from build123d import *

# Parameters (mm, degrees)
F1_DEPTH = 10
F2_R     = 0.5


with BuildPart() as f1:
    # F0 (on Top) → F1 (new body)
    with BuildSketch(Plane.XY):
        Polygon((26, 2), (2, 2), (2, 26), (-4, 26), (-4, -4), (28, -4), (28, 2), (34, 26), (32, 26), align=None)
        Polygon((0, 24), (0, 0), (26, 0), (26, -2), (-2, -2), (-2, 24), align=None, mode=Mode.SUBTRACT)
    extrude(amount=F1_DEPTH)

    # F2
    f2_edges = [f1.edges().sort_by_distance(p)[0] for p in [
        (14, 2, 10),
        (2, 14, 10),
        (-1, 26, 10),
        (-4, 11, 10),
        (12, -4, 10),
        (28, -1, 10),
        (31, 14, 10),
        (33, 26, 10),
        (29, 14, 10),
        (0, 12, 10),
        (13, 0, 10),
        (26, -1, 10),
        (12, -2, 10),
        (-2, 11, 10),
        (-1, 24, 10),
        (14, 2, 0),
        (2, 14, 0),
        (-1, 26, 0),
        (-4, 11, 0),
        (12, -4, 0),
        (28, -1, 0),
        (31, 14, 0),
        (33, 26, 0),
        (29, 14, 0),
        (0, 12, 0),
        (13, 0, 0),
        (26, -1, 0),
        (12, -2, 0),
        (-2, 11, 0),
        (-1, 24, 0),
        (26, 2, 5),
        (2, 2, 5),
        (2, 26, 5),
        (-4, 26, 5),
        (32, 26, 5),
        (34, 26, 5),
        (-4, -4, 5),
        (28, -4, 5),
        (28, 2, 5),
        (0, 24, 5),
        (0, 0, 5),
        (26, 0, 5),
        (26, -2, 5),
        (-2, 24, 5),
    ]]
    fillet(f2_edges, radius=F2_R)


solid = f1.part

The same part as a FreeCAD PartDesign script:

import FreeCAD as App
import Part
import Sketcher


def edges_at(feature, points):
    """Names of the edges that pass closest to the given points."""
    edges = feature.Shape.Edges
    near = lambda p: min(range(len(edges)), key=lambda i: edges[i].distToShape(Part.Vertex(*p))[0])
    return sorted({f"Edge{near(p) + 1}" for p in points})

doc = App.newDocument("Part")
body = doc.addObject("PartDesign::Body", "Body")

# Sketch on XY plane
sketch1 = body.newObject("Sketcher::SketchObject", "Sketch")
sketch1.AttachmentSupport = (doc.getObject("XY_Plane"), [""])
sketch1.MapMode = "FlatFace"
sketch1.addGeometry(Part.LineSegment(App.Vector(26, 2, 0), App.Vector(2, 2, 0)), False)
sketch1.addGeometry(Part.LineSegment(App.Vector(2, 2, 0), App.Vector(2, 26, 0)), False)
sketch1.addGeometry(Part.LineSegment(App.Vector(2, 26, 0), App.Vector(-4, 26, 0)), False)
sketch1.addGeometry(Part.LineSegment(App.Vector(-4, 26, 0), App.Vector(-4, -4, 0)), False)
sketch1.addGeometry(Part.LineSegment(App.Vector(-4, -4, 0), App.Vector(28, -4, 0)), False)
sketch1.addGeometry(Part.LineSegment(App.Vector(28, -4, 0), App.Vector(28, 2, 0)), False)
sketch1.addGeometry(Part.LineSegment(App.Vector(28, 2, 0), App.Vector(34, 26, 0)), False)
sketch1.addGeometry(Part.LineSegment(App.Vector(34, 26, 0), App.Vector(32, 26, 0)), False)
sketch1.addGeometry(Part.LineSegment(App.Vector(32, 26, 0), App.Vector(26, 2, 0)), False)
sketch1.addGeometry(Part.LineSegment(App.Vector(-2, 24, 0), App.Vector(0, 24, 0)), False)
sketch1.addGeometry(Part.LineSegment(App.Vector(0, 24, 0), App.Vector(0, 0, 0)), False)
sketch1.addGeometry(Part.LineSegment(App.Vector(0, 0, 0), App.Vector(26, 0, 0)), False)
sketch1.addGeometry(Part.LineSegment(App.Vector(26, 0, 0), App.Vector(26, -2, 0)), False)
sketch1.addGeometry(Part.LineSegment(App.Vector(26, -2, 0), App.Vector(-2, -2, 0)), False)
sketch1.addGeometry(Part.LineSegment(App.Vector(-2, -2, 0), App.Vector(-2, 24, 0)), False)
sketch1.addConstraint(Sketcher.Constraint("Coincident", 0, 2, 1, 1))
sketch1.addConstraint(Sketcher.Constraint("Coincident", 1, 2, 2, 1))
sketch1.addConstraint(Sketcher.Constraint("Coincident", 2, 2, 3, 1))
sketch1.addConstraint(Sketcher.Constraint("Coincident", 3, 2, 4, 1))
sketch1.addConstraint(Sketcher.Constraint("Coincident", 4, 2, 5, 1))
sketch1.addConstraint(Sketcher.Constraint("Coincident", 5, 2, 6, 1))
sketch1.addConstraint(Sketcher.Constraint("Coincident", 6, 2, 7, 1))
sketch1.addConstraint(Sketcher.Constraint("Coincident", 7, 2, 8, 1))
sketch1.addConstraint(Sketcher.Constraint("Coincident", 8, 2, 0, 1))
sketch1.addConstraint(Sketcher.Constraint("Coincident", 9, 2, 10, 1))
sketch1.addConstraint(Sketcher.Constraint("Coincident", 10, 2, 11, 1))
sketch1.addConstraint(Sketcher.Constraint("Coincident", 11, 2, 12, 1))
sketch1.addConstraint(Sketcher.Constraint("Coincident", 12, 2, 13, 1))
sketch1.addConstraint(Sketcher.Constraint("Coincident", 13, 2, 14, 1))
sketch1.addConstraint(Sketcher.Constraint("Coincident", 14, 2, 9, 1))
sketch1.addConstraint(Sketcher.Constraint("Horizontal", 0))
sketch1.addConstraint(Sketcher.Constraint("Vertical", 1))
sketch1.addConstraint(Sketcher.Constraint("Horizontal", 2))
sketch1.addConstraint(Sketcher.Constraint("Vertical", 3))
sketch1.addConstraint(Sketcher.Constraint("Horizontal", 4))
sketch1.addConstraint(Sketcher.Constraint("Vertical", 5))
sketch1.addConstraint(Sketcher.Constraint("Horizontal", 7))
sketch1.addConstraint(Sketcher.Constraint("Horizontal", 9))
sketch1.addConstraint(Sketcher.Constraint("Vertical", 10))
sketch1.addConstraint(Sketcher.Constraint("Horizontal", 11))
sketch1.addConstraint(Sketcher.Constraint("Vertical", 12))
sketch1.addConstraint(Sketcher.Constraint("Horizontal", 13))
sketch1.addConstraint(Sketcher.Constraint("Vertical", 14))
sketch1.addConstraint(Sketcher.Constraint("Coincident", 10, 2, -1, 1))
sketch1.addConstraint(Sketcher.Constraint("Symmetric", 0, 2, 13, 2, -1, 1))
sketch1.addConstraint(Sketcher.Constraint("Parallel", 6, 8))
sketch1.addConstraint(Sketcher.Constraint("Horizontal", 0, 2, 5, 2))
sketch1.addConstraint(Sketcher.Constraint("Horizontal", 2, 2, 6, 2))
sketch1.addConstraint(Sketcher.Constraint("Vertical", 8, 2, 11, 2))
sketch1.addConstraint(Sketcher.Constraint("Equal", 7, 9))
sketch1.addConstraint(Sketcher.Constraint("Equal", 0, 1))
sketch1.addConstraint(Sketcher.Constraint("Equal", 2, 5))
sketch1.addConstraint(Sketcher.Constraint("Equal", 1, 10))
sketch1.addConstraint(Sketcher.Constraint("Equal", 9, 12))
sketch1.addConstraint(Sketcher.Constraint("DistanceX", 0, 2, 0, 1, 24.0))
sketch1.addConstraint(Sketcher.Constraint("DistanceX", 2, 2, 2, 1, 6.0))
sketch1.addConstraint(Sketcher.Constraint("DistanceX", 4, 1, 4, 2, 32.0))
sketch1.addConstraint(Sketcher.Constraint("DistanceX", -1, 1, 6, 2, 34.0))
pad1 = body.newObject("PartDesign::Pad", "Pad")
pad1.Profile = sketch1
pad1.Length = 10
doc.recompute()

fillet = body.newObject("PartDesign::Fillet", "Fillet")
fillet.Base = (pad1, edges_at(pad1, [
    (14, 2, 10),
    (2, 14, 10),
    (-1, 26, 10),
    (-4, 11, 10),
    (12, -4, 10),
    (28, -1, 10),
    (31, 14, 10),
    (33, 26, 10),
    (29, 14, 10),
    (0, 12, 10),
    (13, 0, 10),
    (26, -1, 10),
    (12, -2, 10),
    (-2, 11, 10),
    (-1, 24, 10),
    (14, 2, 0),
    (2, 14, 0),
    (-1, 26, 0),
    (-4, 11, 0),
    (12, -4, 0),
    (28, -1, 0),
    (31, 14, 0),
    (33, 26, 0),
    (29, 14, 0),
    (0, 12, 0),
    (13, 0, 0),
    (26, -1, 0),
    (12, -2, 0),
    (-2, 11, 0),
    (-1, 24, 0),
    (26, 2, 5),
    (2, 2, 5),
    (2, 26, 5),
    (-4, 26, 5),
    (32, 26, 5),
    (34, 26, 5),
    (-4, -4, 5),
    (28, -4, 5),
    (28, 2, 5),
    (0, 24, 5),
    (0, 0, 5),
    (26, 0, 5),
    (26, -2, 5),
    (-2, 24, 5),
]))
fillet.Radius = 0.5

doc.recompute()
